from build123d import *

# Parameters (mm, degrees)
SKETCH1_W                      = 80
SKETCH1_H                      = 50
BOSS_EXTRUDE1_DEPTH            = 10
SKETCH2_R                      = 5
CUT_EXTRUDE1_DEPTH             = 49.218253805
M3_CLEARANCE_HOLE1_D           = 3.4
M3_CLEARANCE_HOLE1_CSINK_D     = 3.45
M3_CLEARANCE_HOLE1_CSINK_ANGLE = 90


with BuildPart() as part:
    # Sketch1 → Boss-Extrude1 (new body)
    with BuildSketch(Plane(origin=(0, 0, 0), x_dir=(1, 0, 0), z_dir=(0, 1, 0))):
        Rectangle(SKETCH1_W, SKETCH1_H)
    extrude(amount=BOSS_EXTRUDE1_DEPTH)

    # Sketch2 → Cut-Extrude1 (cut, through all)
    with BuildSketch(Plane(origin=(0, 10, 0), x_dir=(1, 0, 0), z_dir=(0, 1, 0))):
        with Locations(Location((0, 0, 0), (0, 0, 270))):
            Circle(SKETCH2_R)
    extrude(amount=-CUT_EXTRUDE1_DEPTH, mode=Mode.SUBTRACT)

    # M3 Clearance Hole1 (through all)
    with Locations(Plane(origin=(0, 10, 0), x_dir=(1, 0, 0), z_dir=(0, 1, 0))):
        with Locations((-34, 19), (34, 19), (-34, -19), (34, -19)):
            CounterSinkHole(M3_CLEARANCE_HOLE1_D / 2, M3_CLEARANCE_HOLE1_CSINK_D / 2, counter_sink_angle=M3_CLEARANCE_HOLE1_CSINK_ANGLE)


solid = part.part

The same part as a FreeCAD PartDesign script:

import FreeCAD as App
import Part
import Sketcher

V = App.Vector

doc = App.newDocument("Part")
body = doc.addObject("PartDesign::Body", "Body")

# Sketch on XZ plane
sketch1 = doc.addObject("Sketcher::SketchObject", "Sketch")
body.addObject(sketch1)
sketch1.AttachmentSupport = (doc.XZ_Plane, [""])
sketch1.MapMode = "FlatFace"
sketch1.addGeometry([
    Part.LineSegment(V(-40, -25, 0), V(-40, 25, 0)),
    Part.LineSegment(V(-40, 25, 0), V(40, 25, 0)),
    Part.LineSegment(V(40, 25, 0), V(40, -25, 0)),
    Part.LineSegment(V(40, -25, 0), V(-40, -25, 0)),
], False)
sketch1.addConstraint([
    Sketcher.Constraint("Coincident", 0, 2, 1, 1),
    Sketcher.Constraint("Coincident", 1, 2, 2, 1),
    Sketcher.Constraint("Coincident", 2, 2, 3, 1),
    Sketcher.Constraint("Coincident", 3, 2, 0, 1),
    Sketcher.Constraint("Vertical", 0),
    Sketcher.Constraint("Horizontal", 1),
    Sketcher.Constraint("Vertical", 2),
    Sketcher.Constraint("Horizontal", 3),
    Sketcher.Constraint("Symmetric", 0, 2, 2, 2, -1, 1),
    Sketcher.Constraint("DistanceX", 1, 1, 1, 2, 80.0),
    Sketcher.Constraint("DistanceY", 0, 1, 0, 2, 50.0),
])
pad1 = doc.addObject("PartDesign::Pad", "Pad")
body.addObject(pad1)
pad1.Profile = sketch1
pad1.Length = 10
pad1.Reversed = True

# Sketch on XZ plane
sketch2 = doc.addObject("Sketcher::SketchObject", "Sketch001")
body.addObject(sketch2)
sketch2.AttachmentSupport = (doc.XZ_Plane, [""])
sketch2.MapMode = "FlatFace"
sketch2.AttachmentOffset = App.Placement(V(0, 0, -10), App.Rotation())
sketch2.addGeometry(Part.Circle(V(0, 0, 0), V(0, 0, 1), 5), False)
sketch2.addConstraint([
    Sketcher.Constraint("Coincident", 0, 3, -1, 1),
    Sketcher.Constraint("Diameter", 0, 10.0),
])
pocket1 = doc.addObject("PartDesign::Pocket", "Pocket")
body.addObject(pocket1)
pocket1.Profile = sketch2
pocket1.Type = "ThroughAll"
pocket1.Reversed = True

# Sketch on XZ plane
sketch3 = doc.addObject("Sketcher::SketchObject", "Sketch002")
body.addObject(sketch3)
sketch3.AttachmentSupport = (doc.XZ_Plane, [""])
sketch3.MapMode = "FlatFace"
sketch3.AttachmentOffset = App.Placement(V(0, 0, -10), App.Rotation())
sketch3.addGeometry([
    Part.Circle(V(-34, -19, 0), V(0, 0, 1), 1.7),
    Part.Circle(V(34, -19, 0), V(0, 0, 1), 1.7),
    Part.Circle(V(-34, 19, 0), V(0, 0, 1), 1.7),
    Part.Circle(V(34, 19, 0), V(0, 0, 1), 1.7),
], False)
sketch3.addConstraint([
    Sketcher.Constraint("Equal", 0, 1),
    Sketcher.Constraint("Equal", 1, 2),
    Sketcher.Constraint("Equal", 2, 3),
    Sketcher.Constraint("Symmetric", 1, 3, 2, 3, -1, 1),
    Sketcher.Constraint("Symmetric", 0, 3, 3, 3, -1, 1),
    Sketcher.Constraint("Symmetric", 0, 3, 1, 3, -2),
    Sketcher.Constraint("Diameter", 0, 3.4),
    Sketcher.Constraint("DistanceX", 0, 3, -1, 1, 34.0),
    Sketcher.Constraint("DistanceY", 0, 3, -1, 1, 19.0),
])
doc.recompute()
hole = doc.addObject("PartDesign::Hole", "Hole")
body.addObject(hole)
hole.Profile = sketch3
hole.ThreadType = "None"
hole.Diameter = 3.4
hole.DepthType = "ThroughAll"
hole.HoleCutType = "Countersink"
hole.HoleCutDiameter = 3.45
hole.HoleCutCountersinkAngle = 90
hole.Reversed = True

doc.recompute()
